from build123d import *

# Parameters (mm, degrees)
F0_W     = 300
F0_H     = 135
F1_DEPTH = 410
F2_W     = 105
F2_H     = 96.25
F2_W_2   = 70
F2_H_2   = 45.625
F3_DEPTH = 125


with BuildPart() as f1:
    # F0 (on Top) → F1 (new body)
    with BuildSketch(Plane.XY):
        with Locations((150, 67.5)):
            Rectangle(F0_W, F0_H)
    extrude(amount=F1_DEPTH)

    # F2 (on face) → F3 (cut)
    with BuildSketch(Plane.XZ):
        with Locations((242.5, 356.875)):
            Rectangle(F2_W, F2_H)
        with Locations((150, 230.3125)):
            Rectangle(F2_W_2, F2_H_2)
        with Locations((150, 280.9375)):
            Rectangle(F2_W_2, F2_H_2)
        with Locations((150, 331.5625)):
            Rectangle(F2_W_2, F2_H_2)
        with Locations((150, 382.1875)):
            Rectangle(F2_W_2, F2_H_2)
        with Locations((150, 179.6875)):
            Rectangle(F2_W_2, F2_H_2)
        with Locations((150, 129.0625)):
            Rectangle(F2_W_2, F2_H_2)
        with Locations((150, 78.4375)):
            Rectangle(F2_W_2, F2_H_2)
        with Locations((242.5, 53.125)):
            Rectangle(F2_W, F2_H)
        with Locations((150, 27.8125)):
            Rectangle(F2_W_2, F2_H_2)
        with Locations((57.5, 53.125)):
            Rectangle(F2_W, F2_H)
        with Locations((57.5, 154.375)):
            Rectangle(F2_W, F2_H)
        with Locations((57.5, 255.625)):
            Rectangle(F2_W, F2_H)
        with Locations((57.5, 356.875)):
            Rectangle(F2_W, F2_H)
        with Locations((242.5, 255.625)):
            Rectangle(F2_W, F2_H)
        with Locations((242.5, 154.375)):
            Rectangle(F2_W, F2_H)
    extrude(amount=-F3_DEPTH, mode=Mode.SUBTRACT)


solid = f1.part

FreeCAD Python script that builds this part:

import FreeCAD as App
import Part
import Sketcher

V = App.Vector


def add_polygon(sketch, points):
    """Adds a closed chain of lines whose ends are joined by coincident constraints."""
    first, n = sketch.GeometryCount, len(points)
    for a, b in zip(points, points[1:] + points[:1]):
        sketch.addGeometry(Part.LineSegment(App.Vector(*a, 0), App.Vector(*b, 0)), False)
    for i in range(n):
        sketch.addConstraint(Sketcher.Constraint("Coincident", first + i, 2, first + (i + 1) % n, 1))

doc = App.newDocument("Part")
body = doc.addObject("PartDesign::Body", "Body")

# Sketch on XY plane
sketch1 = body.newObject("Sketcher::SketchObject", "Sketch")
sketch1.AttachmentSupport = (doc.getObject("XY_Plane"), [""])
sketch1.MapMode = "FlatFace"
add_polygon(sketch1, [(0, 135), (0, 0), (300, 0), (300, 135)])  # lines 0-3
sketch1.addConstraint(Sketcher.Constraint("Vertical", 0))
sketch1.addConstraint(Sketcher.Constraint("Horizontal", 1))
sketch1.addConstraint(Sketcher.Constraint("Vertical", 2))
sketch1.addConstraint(Sketcher.Constraint("Horizontal", 3))
sketch1.addConstraint(Sketcher.Constraint("Coincident", 0, 2, -1, 1))
sketch1.addConstraint(Sketcher.Constraint("DistanceX", 1, 1, 1, 2, 300.0))
sketch1.addConstraint(Sketcher.Constraint("DistanceY", 0, 2, 0, 1, 135.0))
pad1 = body.newObject("PartDesign::Pad", "Pad")
pad1.Profile = sketch1
pad1.Length = 410

# Sketch on XZ plane
sketch2 = body.newObject("Sketcher::SketchObject", "Sketch001")
sketch2.AttachmentSupport = (doc.getObject("XZ_Plane"), [""])
sketch2.MapMode = "FlatFace"
add_polygon(sketch2, [(190, 405), (190, 308.75), (295, 308.75), (295, 405)])  # lines 0-3
add_polygon(sketch2, [(115, 253.125), (115, 207.5), (185, 207.5), (185, 253.125)])  # lines 4-7
add_polygon(sketch2, [(115, 303.75), (115, 258.125), (185, 258.125), (185, 303.75)])  # lines 8-11
add_polygon(sketch2, [(115, 354.375), (115, 308.75), (185, 308.75), (185, 354.375)])  # lines 12-15
add_polygon(sketch2, [(115, 405), (115, 359.375), (185, 359.375), (185, 405)])  # lines 16-19
add_polygon(sketch2, [(115, 202.5), (115, 156.875), (185, 156.875), (185, 202.5)])  # lines 20-23
add_polygon(sketch2, [(115, 151.875), (115, 106.25), (185, 106.25), (185, 151.875)])  # lines 24-27
add_polygon(sketch2, [(115, 101.25), (115, 55.625), (185, 55.625), (185, 101.25)])  # lines 28-31
add_polygon(sketch2, [(190, 101.25), (190, 5), (295, 5), (295, 101.25)])  # lines 32-35
add_polygon(sketch2, [(115, 50.625), (115, 5), (185, 5), (185, 50.625)])  # lines 36-39
add_polygon(sketch2, [(5, 101.25), (5, 5), (110, 5), (110, 101.25)])  # lines 40-43
add_polygon(sketch2, [(5, 202.5), (5, 106.25), (110, 106.25), (110, 202.5)])  # lines 44-47
add_polygon(sketch2, [(5, 303.75), (5, 207.5), (110, 207.5), (110, 303.75)])  # lines 48-51
add_polygon(sketch2, [(5, 405), (5, 308.75), (110, 308.75), (110, 405)])  # lines 52-55
add_polygon(sketch2, [(190, 303.75), (190, 207.5), (295, 207.5), (295, 303.75)])  # lines 56-59
add_polygon(sketch2, [(190, 202.5), (190, 106.25), (295, 106.25), (295, 202.5)])  # lines 60-63
sketch2.addConstraint(Sketcher.Constraint("Vertical", 0))
sketch2.addConstraint(Sketcher.Constraint("Horizontal", 1))
sketch2.addConstraint(Sketcher.Constraint("Vertical", 2))
sketch2.addConstraint(Sketcher.Constraint("Horizontal", 3))
sketch2.addConstraint(Sketcher.Constraint("Vertical", 4))
sketch2.addConstraint(Sketcher.Constraint("Horizontal", 5))
sketch2.addConstraint(Sketcher.Constraint("Vertical", 6))
sketch2.addConstraint(Sketcher.Constraint("Horizontal", 7))
sketch2.addConstraint(Sketcher.Constraint("Vertical", 8))
sketch2.addConstraint(Sketcher.Constraint("Horizontal", 9))
sketch2.addConstraint(Sketcher.Constraint("Vertical", 10))
sketch2.addConstraint(Sketcher.Constraint("Horizontal", 11))
sketch2.addConstraint(Sketcher.Constraint("Vertical", 12))
sketch2.addConstraint(Sketcher.Constraint("Horizontal", 13))
sketch2.addConstraint(Sketcher.Constraint("Vertical", 14))
sketch2.addConstraint(Sketcher.Constraint("Horizontal", 15))
sketch2.addConstraint(Sketcher.Constraint("Vertical", 16))
sketch2.addConstraint(Sketcher.Constraint("Horizontal", 17))
sketch2.addConstraint(Sketcher.Constraint("Vertical", 18))
sketch2.addConstraint(Sketcher.Constraint("Horizontal", 19))
sketch2.addConstraint(Sketcher.Constraint("Vertical", 20))
sketch2.addConstraint(Sketcher.Constraint("Horizontal", 21))
sketch2.addConstraint(Sketcher.Constraint("Vertical", 22))
sketch2.addConstraint(Sketcher.Constraint("Horizontal", 23))
sketch2.addConstraint(Sketcher.Constraint("Vertical", 24))
sketch2.addConstraint(Sketcher.Constraint("Horizontal", 25))
sketch2.addConstraint(Sketcher.Constraint("Vertical", 26))
sketch2.addConstraint(Sketcher.Constraint("Horizontal", 27))
sketch2.addConstraint(Sketcher.Constraint("Vertical", 28))
sketch2.addConstraint(Sketcher.Constraint("Horizontal", 29))
sketch2.addConstraint(Sketcher.Constraint("Vertical", 30))
sketch2.addConstraint(Sketcher.Constraint("Horizontal", 31))
sketch2.addConstraint(Sketcher.Constraint("Vertical", 32))
sketch2.addConstraint(Sketcher.Constraint("Horizontal", 33))
sketch2.addConstraint(Sketcher.Constraint("Vertical", 34))
sketch2.addConstraint(Sketcher.Constraint("Horizontal", 35))
sketch2.addConstraint(Sketcher.Constraint("Vertical", 36))
sketch2.addConstraint(Sketcher.Constraint("Horizontal", 37))
sketch2.addConstraint(Sketcher.Constraint("Vertical", 38))
sketch2.addConstraint(Sketcher.Constraint("Horizontal", 39))
sketch2.addConstraint(Sketcher.Constraint("Vertical", 40))
sketch2.addConstraint(Sketcher.Constraint("Horizontal", 41))
sketch2.addConstraint(Sketcher.Constraint("Vertical", 42))
sketch2.addConstraint(Sketcher.Constraint("Horizontal", 43))
sketch2.addConstraint(Sketcher.Constraint("Vertical", 44))
sketch2.addConstraint(Sketcher.Constraint("Horizontal", 45))
sketch2.addConstraint(Sketcher.Constraint("Vertical", 46))
sketch2.addConstraint(Sketcher.Constraint("Horizontal", 47))
sketch2.addConstraint(Sketcher.Constraint("Vertical", 48))
sketch2.addConstraint(Sketcher.Constraint("Horizontal", 49))
sketch2.addConstraint(Sketcher.Constraint("Vertical", 50))
sketch2.addConstraint(Sketcher.Constraint("Horizontal", 51))
sketch2.addConstraint(Sketcher.Constraint("Vertical", 52))
sketch2.addConstraint(Sketcher.Constraint("Horizontal", 53))
sketch2.addConstraint(Sketcher.Constraint("Vertical", 54))
sketch2.addConstraint(Sketcher.Constraint("Horizontal", 55))
sketch2.addConstraint(Sketcher.Constraint("Vertical", 56))
sketch2.addConstraint(Sketcher.Constraint("Horizontal", 57))
sketch2.addConstraint(Sketcher.Constraint("Vertical", 58))
sketch2.addConstraint(Sketcher.Constraint("Horizontal", 59))
sketch2.addConstraint(Sketcher.Constraint("Vertical", 60))
sketch2.addConstraint(Sketcher.Constraint("Horizontal", 61))
sketch2.addConstraint(Sketcher.Constraint("Vertical", 62))
sketch2.addConstraint(Sketcher.Constraint("Horizontal", 63))
sketch2.addConstraint(Sketcher.Constraint("Horizontal", 1, 2, 12, 2))
sketch2.addConstraint(Sketcher.Constraint("Horizontal", 3, 2, 18, 2))
sketch2.addConstraint(Sketcher.Constraint("Horizontal", 31, 2, 34, 2))
sketch2.addConstraint(Sketcher.Constraint("Horizontal", 33, 2, 36, 2))
sketch2.addConstraint(Sketcher.Constraint("Horizontal", 37, 2, 40, 2))
sketch2.addConstraint(Sketcher.Constraint("Horizontal", 35, 2, 42, 2))
sketch2.addConstraint(Sketcher.Constraint("Horizontal", 25, 2, 44, 2))
sketch2.addConstraint(Sketcher.Constraint("Horizontal", 23, 2, 46, 2))
sketch2.addConstraint(Sketcher.Constraint("Horizontal", 5, 2, 48, 2))
sketch2.addConstraint(Sketcher.Constraint("Horizontal", 11, 2, 50, 2))
sketch2.addConstraint(Sketcher.Constraint("Horizontal", 13, 2, 52, 2))
sketch2.addConstraint(Sketcher.Constraint("Horizontal", 19, 2, 54, 2))
sketch2.addConstraint(Sketcher.Constraint("Horizontal", 49, 2, 56, 2))
sketch2.addConstraint(Sketcher.Constraint("Horizontal", 51, 2, 58, 2))
sketch2.addConstraint(Sketcher.Constraint("Horizontal", 45, 2, 60, 2))
sketch2.addConstraint(Sketcher.Constraint("Horizontal", 47, 2, 62, 2))
sketch2.addConstraint(Sketcher.Constraint("Vertical", 7, 2, 8, 2))
sketch2.addConstraint(Sketcher.Constraint("Vertical", 6, 2, 9, 2))
sketch2.addConstraint(Sketcher.Constraint("Vertical", 11, 2, 12, 2))
sketch2.addConstraint(Sketcher.Constraint("Vertical", 10, 2, 13, 2))
sketch2.addConstraint(Sketcher.Constraint("Vertical", 15, 2, 16, 2))
sketch2.addConstraint(Sketcher.Constraint("Vertical", 14, 2, 17, 2))
sketch2.addConstraint(Sketcher.Constraint("Vertical", 19, 2, 20, 2))
sketch2.addConstraint(Sketcher.Constraint("Vertical", 18, 2, 21, 2))
sketch2.addConstraint(Sketcher.Constraint("Vertical", 23, 2, 24, 2))
sketch2.addConstraint(Sketcher.Constraint("Vertical", 22, 2, 25, 2))
sketch2.addConstraint(Sketcher.Constraint("Vertical", 27, 2, 28, 2))
sketch2.addConstraint(Sketcher.Constraint("Vertical", 26, 2, 29, 2))
sketch2.addConstraint(Sketcher.Constraint("Vertical", 3, 2, 32, 2))
sketch2.addConstraint(Sketcher.Constraint("Vertical", 2, 2, 33, 2))
sketch2.addConstraint(Sketcher.Constraint("Vertical", 31, 2, 36, 2))
sketch2.addConstraint(Sketcher.Constraint("Vertical", 30, 2, 37, 2))
sketch2.addConstraint(Sketcher.Constraint("Vertical", 43, 2, 44, 2))
sketch2.addConstraint(Sketcher.Constraint("Vertical", 42, 2, 45, 2))
sketch2.addConstraint(Sketcher.Constraint("Vertical", 47, 2, 48, 2))
sketch2.addConstraint(Sketcher.Constraint("Vertical", 46, 2, 49, 2))
sketch2.addConstraint(Sketcher.Constraint("Vertical", 51, 2, 52, 2))
sketch2.addConstraint(Sketcher.Constraint("Vertical", 50, 2, 53, 2))
sketch2.addConstraint(Sketcher.Constraint("Vertical", 35, 2, 56, 2))
sketch2.addConstraint(Sketcher.Constraint("Vertical", 34, 2, 57, 2))
sketch2.addConstraint(Sketcher.Constraint("Vertical", 59, 2, 60, 2))
sketch2.addConstraint(Sketcher.Constraint("Vertical", 58, 2, 61, 2))
sketch2.addConstraint(Sketcher.Constraint("Equal", 35, 41))
sketch2.addConstraint(Sketcher.Constraint("Equal", 6, 8))
sketch2.addConstraint(Sketcher.Constraint("Equal", 10, 12))
sketch2.addConstraint(Sketcher.Constraint("Equal", 14, 16))
sketch2.addConstraint(Sketcher.Constraint("Equal", 18, 20))
sketch2.addConstraint(Sketcher.Constraint("Equal", 22, 24))
sketch2.addConstraint(Sketcher.Constraint("Equal", 26, 28))
sketch2.addConstraint(Sketcher.Constraint("Equal", 2, 32))
sketch2.addConstraint(Sketcher.Constraint("Equal", 30, 36))
sketch2.addConstraint(Sketcher.Constraint("Equal", 42, 44))
sketch2.addConstraint(Sketcher.Constraint("Equal", 46, 48))
sketch2.addConstraint(Sketcher.Constraint("DistanceX", 1, 1, 1, 2, 105.0))
sketch2.addConstraint(Sketcher.Constraint("DistanceX", 5, 1, 5, 2, 70.0))
sketch2.addConstraint(Sketcher.Constraint("DistanceX", -1, 1, 0, 2, 190.0))
sketch2.addConstraint(Sketcher.Constraint("DistanceY", -1, 1, 2, 2, 405.0))
sketch2.addConstraint(Sketcher.Constraint("DistanceX", -1, 1, 4, 2, 115.0))
sketch2.addConstraint(Sketcher.Constraint("DistanceY", -1, 1, 32, 2, 5.0))
sketch2.addConstraint(Sketcher.Constraint("DistanceX", -1, 1, 40, 2, 5.0))
sketch2.addConstraint(Sketcher.Constraint("DistanceY", 0, 2, 0, 1, 96.25))
sketch2.addConstraint(Sketcher.Constraint("DistanceY", -1, 1, 4, 2, 207.5))
sketch2.addConstraint(Sketcher.Constraint("DistanceY", -1, 1, 22, 2, 202.5))
sketch2.addConstraint(Sketcher.Constraint("DistanceY", 4, 2, 4, 1, 45.625))
pocket1 = body.newObject("PartDesign::Pocket", "Pocket")
pocket1.Profile = sketch2
pocket1.Length = 125

doc.recompute()
